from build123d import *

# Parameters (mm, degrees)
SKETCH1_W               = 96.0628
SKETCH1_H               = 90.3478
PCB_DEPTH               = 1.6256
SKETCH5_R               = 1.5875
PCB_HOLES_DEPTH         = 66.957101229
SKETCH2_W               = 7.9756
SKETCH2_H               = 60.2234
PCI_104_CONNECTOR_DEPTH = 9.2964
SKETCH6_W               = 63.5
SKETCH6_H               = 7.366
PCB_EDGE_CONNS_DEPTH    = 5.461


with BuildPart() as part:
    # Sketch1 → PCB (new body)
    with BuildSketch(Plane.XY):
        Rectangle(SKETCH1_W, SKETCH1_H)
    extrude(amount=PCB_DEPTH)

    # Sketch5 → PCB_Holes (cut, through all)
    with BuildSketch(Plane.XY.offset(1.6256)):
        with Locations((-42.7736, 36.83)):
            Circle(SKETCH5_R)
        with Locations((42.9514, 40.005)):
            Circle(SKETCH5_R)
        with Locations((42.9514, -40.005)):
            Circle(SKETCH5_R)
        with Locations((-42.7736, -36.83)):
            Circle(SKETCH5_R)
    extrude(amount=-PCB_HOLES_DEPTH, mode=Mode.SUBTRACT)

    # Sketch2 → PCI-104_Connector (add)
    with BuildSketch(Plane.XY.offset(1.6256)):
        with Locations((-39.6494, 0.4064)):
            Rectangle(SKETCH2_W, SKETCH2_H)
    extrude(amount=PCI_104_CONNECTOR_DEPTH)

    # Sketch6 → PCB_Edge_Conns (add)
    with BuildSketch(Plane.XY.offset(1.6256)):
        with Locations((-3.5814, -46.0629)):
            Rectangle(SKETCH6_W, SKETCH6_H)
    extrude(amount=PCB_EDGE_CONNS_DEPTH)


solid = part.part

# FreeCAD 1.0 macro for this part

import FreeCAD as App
import Part
import Sketcher
Q = App.Units.Quantity

doc = App.newDocument("Part")
body = doc.addObject("PartDesign::Body", "Body")

sketch1 = body.newObject("Sketcher::SketchObject", "Sketch")
sketch1.AttachmentSupport = (doc.getObject("XY_Plane"), [""])
sketch1.MapMode = "FlatFace"
sketch1.addGeometry(Part.LineSegment(App.Vector(-48, 45, 0), App.Vector(-48, -45, 0)), False)
sketch1.addGeometry(Part.LineSegment(App.Vector(-48, -45, 0), App.Vector(48, -45, 0)), False)
sketch1.addGeometry(Part.LineSegment(App.Vector(48, -45, 0), App.Vector(48, 45, 0)), False)
sketch1.addGeometry(Part.LineSegment(App.Vector(48, 45, 0), App.Vector(-48, 45, 0)), False)
sketch1.addConstraint(Sketcher.Constraint("Coincident", 0, 2, 1, 1))
sketch1.addConstraint(Sketcher.Constraint("Coincident", 1, 2, 2, 1))
sketch1.addConstraint(Sketcher.Constraint("Coincident", 2, 2, 3, 1))
sketch1.addConstraint(Sketcher.Constraint("Coincident", 3, 2, 0, 1))
sketch1.addConstraint(Sketcher.Constraint("Vertical", 0))
sketch1.addConstraint(Sketcher.Constraint("Horizontal", 1))
sketch1.addConstraint(Sketcher.Constraint("Vertical", 2))
sketch1.addConstraint(Sketcher.Constraint("Horizontal", 3))
sketch1.addConstraint(Sketcher.Constraint("Symmetric", 0, 2, 2, 2, -1, 1))
sketch1.addConstraint(Sketcher.Constraint("DistanceX", 1, 1, 1, 2, Q("3.782 in")))
sketch1.addConstraint(Sketcher.Constraint("DistanceY", 0, 2, 0, 1, Q("3.557 in")))
pad1 = body.newObject("PartDesign::Pad", "Pad")
pad1.Profile = sketch1
pad1.Length = Q("0.064 in")

sketch2 = body.newObject("Sketcher::SketchObject", "Sketch001")
sketch2.AttachmentSupport = (doc.getObject("XY_Plane"), [""])
sketch2.MapMode = "FlatFace"
sketch2.AttachmentOffset = App.Placement(App.Vector(0, 0, 0.064 * 25.4), App.Rotation())
sketch2.addGeometry(Part.Circle(App.Vector(-42.8, 36.8, 0), App.Vector(0, 0, 1), 1.6), False)
sketch2.addGeometry(Part.Circle(App.Vector(43, 40, 0), App.Vector(0, 0, 1), 1.6), False)
sketch2.addGeometry(Part.Circle(App.Vector(43, -40, 0), App.Vector(0, 0, 1), 1.6), False)
sketch2.addGeometry(Part.Circle(App.Vector(-42.8, -36.8, 0), App.Vector(0, 0, 1), 1.6), False)
sketch2.addConstraint(Sketcher.Constraint("Equal", 0, 1))
sketch2.addConstraint(Sketcher.Constraint("Equal", 1, 2))
sketch2.addConstraint(Sketcher.Constraint("Equal", 2, 3))
sketch2.addConstraint(Sketcher.Constraint("Symmetric", 1, 3, 2, 3, -1))
sketch2.addConstraint(Sketcher.Constraint("Symmetric", 0, 3, 3, 3, -1))
sketch2.addConstraint(Sketcher.Constraint("Diameter", 0, Q("0.125 in")))
sketch2.addConstraint(Sketcher.Constraint("DistanceY", 3, 3, 0, 3, Q("2.9 in")))
sketch2.addConstraint(Sketcher.Constraint("DistanceY", 2, 3, 1, 3, Q("3.15 in")))
sketch2.addConstraint(Sketcher.Constraint("DistanceX", 0, 3, -1, 1, Q("1.684 in")))
sketch2.addConstraint(Sketcher.Constraint("DistanceX", -1, 1, 1, 3, Q("1.691 in")))
pocket1 = body.newObject("PartDesign::Pocket", "Pocket")
pocket1.Profile = sketch2
pocket1.Type = "ThroughAll"

sketch3 = body.newObject("Sketcher::SketchObject", "Sketch002")
sketch3.AttachmentSupport = (doc.getObject("XY_Plane"), [""])
sketch3.MapMode = "FlatFace"
sketch3.AttachmentOffset = App.Placement(App.Vector(0, 0, 0.064 * 25.4), App.Rotation())
sketch3.addGeometry(Part.LineSegment(App.Vector(-44, 31, 0), App.Vector(-44, -30, 0)), False)
sketch3.addGeometry(Part.LineSegment(App.Vector(-44, -30, 0), App.Vector(-36, -30, 0)), False)
sketch3.addGeometry(Part.LineSegment(App.Vector(-36, -30, 0), App.Vector(-36, 31, 0)), False)
sketch3.addGeometry(Part.LineSegment(App.Vector(-36, 31, 0), App.Vector(-44, 31, 0)), False)
sketch3.addConstraint(Sketcher.Constraint("Coincident", 0, 2, 1, 1))
sketch3.addConstraint(Sketcher.Constraint("Coincident", 1, 2, 2, 1))
sketch3.addConstraint(Sketcher.Constraint("Coincident", 2, 2, 3, 1))
sketch3.addConstraint(Sketcher.Constraint("Coincident", 3, 2, 0, 1))
sketch3.addConstraint(Sketcher.Constraint("Vertical", 0))
sketch3.addConstraint(Sketcher.Constraint("Horizontal", 1))
sketch3.addConstraint(Sketcher.Constraint("Vertical", 2))
sketch3.addConstraint(Sketcher.Constraint("Horizontal", 3))
sketch3.addConstraint(Sketcher.Constraint("DistanceX", 1, 1, 1, 2, Q("0.314 in")))
sketch3.addConstraint(Sketcher.Constraint("DistanceY", 0, 2, 0, 1, Q("2.371 in")))
sketch3.addConstraint(Sketcher.Constraint("DistanceX", 0, 2, -1, 1, Q("1.718 in")))
sketch3.addConstraint(Sketcher.Constraint("DistanceY", 0, 2, -1, 1, Q("1.1695 in")))
pad2 = body.newObject("PartDesign::Pad", "Pad001")
pad2.Profile = sketch3
pad2.Length = Q("0.366 in")

sketch4 = body.newObject("Sketcher::SketchObject", "Sketch003")
sketch4.AttachmentSupport = (doc.getObject("XY_Plane"), [""])
sketch4.MapMode = "FlatFace"
sketch4.AttachmentOffset = App.Placement(App.Vector(0, 0, 0.064 * 25.4), App.Rotation())
sketch4.addGeometry(Part.LineSegment(App.Vector(-35, -42, 0), App.Vector(-35, -50, 0)), False)
sketch4.addGeometry(Part.LineSegment(App.Vector(-35, -50, 0), App.Vector(28, -50, 0)), False)
sketch4.addGeometry(Part.LineSegment(App.Vector(28, -50, 0), App.Vector(28, -42, 0)), False)
sketch4.addGeometry(Part.LineSegment(App.Vector(28, -42, 0), App.Vector(-35, -42, 0)), False)
sketch4.addConstraint(Sketcher.Constraint("Coincident", 0, 2, 1, 1))
sketch4.addConstraint(Sketcher.Constraint("Coincident", 1, 2, 2, 1))
sketch4.addConstraint(Sketcher.Constraint("Coincident", 2, 2, 3, 1))
sketch4.addConstraint(Sketcher.Constraint("Coincident", 3, 2, 0, 1))
sketch4.addConstraint(Sketcher.Constraint("Vertical", 0))
sketch4.addConstraint(Sketcher.Constraint("Horizontal", 1))
sketch4.addConstraint(Sketcher.Constraint("Vertical", 2))
sketch4.addConstraint(Sketcher.Constraint("Horizontal", 3))
sketch4.addConstraint(Sketcher.Constraint("DistanceX", 1, 1, 1, 2, Q("2.5 in")))
sketch4.addConstraint(Sketcher.Constraint("DistanceY", 0, 2, 0, 1, Q("0.29 in")))
sketch4.addConstraint(Sketcher.Constraint("DistanceX", 0, 2, -1, 1, Q("1.391 in")))
sketch4.addConstraint(Sketcher.Constraint("DistanceY", 0, 2, -1, 1, Q("1.9585 in")))
pad3 = body.newObject("PartDesign::Pad", "Pad002")
pad3.Profile = sketch4
pad3.Length = Q("0.215 in")

doc.recompute()
